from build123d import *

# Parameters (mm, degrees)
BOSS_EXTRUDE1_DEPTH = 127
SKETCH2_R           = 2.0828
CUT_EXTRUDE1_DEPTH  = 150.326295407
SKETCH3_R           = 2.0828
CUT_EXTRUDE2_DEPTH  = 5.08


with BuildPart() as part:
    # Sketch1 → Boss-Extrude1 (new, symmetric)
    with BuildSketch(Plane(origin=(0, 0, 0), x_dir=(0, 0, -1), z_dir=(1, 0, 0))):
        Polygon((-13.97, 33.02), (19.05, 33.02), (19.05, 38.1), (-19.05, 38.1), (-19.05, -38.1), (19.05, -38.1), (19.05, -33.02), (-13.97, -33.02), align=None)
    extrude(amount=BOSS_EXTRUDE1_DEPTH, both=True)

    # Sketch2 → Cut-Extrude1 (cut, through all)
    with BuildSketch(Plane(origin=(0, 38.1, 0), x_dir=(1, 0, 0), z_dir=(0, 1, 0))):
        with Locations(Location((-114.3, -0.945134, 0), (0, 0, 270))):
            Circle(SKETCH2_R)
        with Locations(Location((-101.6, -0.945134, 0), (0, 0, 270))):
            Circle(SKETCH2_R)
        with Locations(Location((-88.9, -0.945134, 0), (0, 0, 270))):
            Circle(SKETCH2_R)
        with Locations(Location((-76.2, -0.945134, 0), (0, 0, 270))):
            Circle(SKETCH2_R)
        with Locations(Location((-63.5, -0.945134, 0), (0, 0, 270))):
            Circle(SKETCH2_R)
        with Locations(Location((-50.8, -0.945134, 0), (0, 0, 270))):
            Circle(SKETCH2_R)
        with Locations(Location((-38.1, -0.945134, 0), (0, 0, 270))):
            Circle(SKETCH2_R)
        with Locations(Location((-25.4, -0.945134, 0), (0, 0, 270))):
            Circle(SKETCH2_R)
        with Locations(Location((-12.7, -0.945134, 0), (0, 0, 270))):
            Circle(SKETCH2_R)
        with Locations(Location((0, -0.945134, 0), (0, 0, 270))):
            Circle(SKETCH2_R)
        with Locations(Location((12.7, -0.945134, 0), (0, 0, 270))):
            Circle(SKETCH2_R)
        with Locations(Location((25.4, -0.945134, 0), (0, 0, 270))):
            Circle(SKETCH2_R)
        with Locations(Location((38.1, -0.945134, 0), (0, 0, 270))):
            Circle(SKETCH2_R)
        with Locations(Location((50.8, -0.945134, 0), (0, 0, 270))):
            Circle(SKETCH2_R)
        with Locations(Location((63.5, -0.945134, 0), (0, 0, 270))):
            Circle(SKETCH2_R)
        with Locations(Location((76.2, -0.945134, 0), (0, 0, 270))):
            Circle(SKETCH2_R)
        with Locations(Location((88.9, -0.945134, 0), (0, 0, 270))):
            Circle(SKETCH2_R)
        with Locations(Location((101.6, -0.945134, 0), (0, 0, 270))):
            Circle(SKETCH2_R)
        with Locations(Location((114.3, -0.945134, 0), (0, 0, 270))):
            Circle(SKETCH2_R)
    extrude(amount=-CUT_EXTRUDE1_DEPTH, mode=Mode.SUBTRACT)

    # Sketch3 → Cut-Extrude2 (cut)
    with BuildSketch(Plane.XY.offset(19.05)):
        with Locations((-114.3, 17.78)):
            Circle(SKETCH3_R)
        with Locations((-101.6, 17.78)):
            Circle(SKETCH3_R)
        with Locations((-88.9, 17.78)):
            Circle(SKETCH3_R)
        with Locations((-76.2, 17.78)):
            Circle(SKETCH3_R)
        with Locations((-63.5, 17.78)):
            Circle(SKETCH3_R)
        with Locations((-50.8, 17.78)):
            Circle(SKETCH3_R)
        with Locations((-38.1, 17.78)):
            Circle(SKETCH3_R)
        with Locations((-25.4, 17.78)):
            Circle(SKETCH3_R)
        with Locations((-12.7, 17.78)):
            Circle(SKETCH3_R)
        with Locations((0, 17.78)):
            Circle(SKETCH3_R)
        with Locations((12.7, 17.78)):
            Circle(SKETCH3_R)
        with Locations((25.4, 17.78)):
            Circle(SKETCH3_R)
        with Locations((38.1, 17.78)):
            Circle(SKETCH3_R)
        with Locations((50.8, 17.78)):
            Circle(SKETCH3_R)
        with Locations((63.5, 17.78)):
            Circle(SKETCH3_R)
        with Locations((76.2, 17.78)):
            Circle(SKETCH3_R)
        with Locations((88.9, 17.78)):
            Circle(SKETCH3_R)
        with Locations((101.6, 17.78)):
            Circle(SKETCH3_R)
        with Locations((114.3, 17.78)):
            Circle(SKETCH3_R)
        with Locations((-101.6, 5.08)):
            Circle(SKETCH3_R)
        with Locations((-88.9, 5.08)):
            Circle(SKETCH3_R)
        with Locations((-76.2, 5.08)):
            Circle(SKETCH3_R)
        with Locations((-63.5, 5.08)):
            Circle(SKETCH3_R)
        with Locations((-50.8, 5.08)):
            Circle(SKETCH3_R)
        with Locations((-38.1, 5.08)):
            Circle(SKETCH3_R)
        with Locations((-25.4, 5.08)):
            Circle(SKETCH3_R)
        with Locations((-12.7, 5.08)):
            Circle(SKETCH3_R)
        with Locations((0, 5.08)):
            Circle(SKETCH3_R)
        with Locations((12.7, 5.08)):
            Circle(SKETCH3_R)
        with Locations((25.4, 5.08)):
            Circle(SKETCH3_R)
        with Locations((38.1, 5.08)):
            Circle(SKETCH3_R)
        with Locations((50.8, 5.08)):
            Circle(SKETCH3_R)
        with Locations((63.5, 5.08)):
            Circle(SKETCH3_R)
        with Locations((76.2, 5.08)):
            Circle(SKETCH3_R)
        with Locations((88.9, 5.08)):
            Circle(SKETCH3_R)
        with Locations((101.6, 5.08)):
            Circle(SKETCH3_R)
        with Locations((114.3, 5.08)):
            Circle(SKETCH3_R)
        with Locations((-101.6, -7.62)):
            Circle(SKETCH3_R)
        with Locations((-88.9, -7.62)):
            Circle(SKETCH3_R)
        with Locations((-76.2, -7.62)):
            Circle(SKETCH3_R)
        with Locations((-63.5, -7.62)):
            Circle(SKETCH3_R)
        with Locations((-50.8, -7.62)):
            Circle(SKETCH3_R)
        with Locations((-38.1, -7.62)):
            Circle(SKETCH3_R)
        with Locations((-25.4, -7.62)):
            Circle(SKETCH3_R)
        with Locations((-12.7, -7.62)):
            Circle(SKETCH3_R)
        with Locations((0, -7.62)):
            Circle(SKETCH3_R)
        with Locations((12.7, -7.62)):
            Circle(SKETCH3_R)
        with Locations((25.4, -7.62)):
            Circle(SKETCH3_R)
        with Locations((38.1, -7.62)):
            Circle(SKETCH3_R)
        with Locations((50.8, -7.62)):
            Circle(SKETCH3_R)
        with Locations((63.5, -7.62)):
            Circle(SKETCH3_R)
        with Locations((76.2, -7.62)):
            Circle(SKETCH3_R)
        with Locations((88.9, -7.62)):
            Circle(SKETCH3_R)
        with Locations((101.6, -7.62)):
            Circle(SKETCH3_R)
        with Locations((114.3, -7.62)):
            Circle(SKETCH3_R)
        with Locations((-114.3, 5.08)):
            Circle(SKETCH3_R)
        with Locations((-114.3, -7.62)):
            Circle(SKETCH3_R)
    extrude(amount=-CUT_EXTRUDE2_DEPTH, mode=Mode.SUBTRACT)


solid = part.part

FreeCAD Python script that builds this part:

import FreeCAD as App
import Part
import Sketcher

V = App.Vector
Q = App.Units.Quantity

doc = App.newDocument("Part")
body = doc.addObject("PartDesign::Body", "Body")

# Sketch on YZ plane
sketch1 = doc.addObject("Sketcher::SketchObject", "Sketch")
body.addObject(sketch1)
sketch1.AttachmentSupport = (doc.YZ_Plane, [""])
sketch1.MapMode = "FlatFace"
sketch1.addGeometry([
    Part.LineSegment(V(33.02, 13.97, 0), V(33.02, -19.05, 0)),  # 0
    Part.LineSegment(V(33.02, -19.05, 0), V(38.1, -19.05, 0)),  # 1
    Part.LineSegment(V(38.1, -19.05, 0), V(38.1, 19.05, 0)),  # 2
    Part.LineSegment(V(38.1, 19.05, 0), V(-38.1, 19.05, 0)),  # 3
    Part.LineSegment(V(-38.1, 19.05, 0), V(-38.1, -19.05, 0)),  # 4
    Part.LineSegment(V(-38.1, -19.05, 0), V(-33.02, -19.05, 0)),  # 5
    Part.LineSegment(V(-33.02, -19.05, 0), V(-33.02, 13.97, 0)),  # 6
    Part.LineSegment(V(-33.02, 13.97, 0), V(33.02, 13.97, 0)),  # 7
], False)
sketch1.addConstraint([
    Sketcher.Constraint("Coincident", 0, 2, 1, 1),
    Sketcher.Constraint("Coincident", 1, 2, 2, 1),
    Sketcher.Constraint("Coincident", 2, 2, 3, 1),
    Sketcher.Constraint("Coincident", 3, 2, 4, 1),
    Sketcher.Constraint("Coincident", 4, 2, 5, 1),
    Sketcher.Constraint("Coincident", 5, 2, 6, 1),
    Sketcher.Constraint("Coincident", 6, 2, 7, 1),
    Sketcher.Constraint("Coincident", 7, 2, 0, 1),
    Sketcher.Constraint("Vertical", 0),
    Sketcher.Constraint("Horizontal", 1),
    Sketcher.Constraint("Vertical", 2),
    Sketcher.Constraint("Horizontal", 3),
    Sketcher.Constraint("Vertical", 4),
    Sketcher.Constraint("Horizontal", 5),
    Sketcher.Constraint("Vertical", 6),
    Sketcher.Constraint("Horizontal", 7),
    Sketcher.Constraint("Symmetric", 1, 2, 3, 2, -1, 1),
    Sketcher.Constraint("Symmetric", 0, 2, 5, 2, -2),
    Sketcher.Constraint("DistanceX", 3, 2, 3, 1, Q("3 in")),
    Sketcher.Constraint("DistanceX", 1, 1, 1, 2, Q("0.2 in")),
    Sketcher.Constraint("DistanceY", 0, 2, 0, 1, Q("1.3 in")),
    Sketcher.Constraint("DistanceY", 2, 1, 2, 2, Q("1.5 in")),
])
pad1 = doc.addObject("PartDesign::Pad", "Pad")
body.addObject(pad1)
pad1.Profile = sketch1
pad1.Length = Q("10 in")
pad1.Midplane = True

# Sketch on XZ plane
sketch2 = doc.addObject("Sketcher::SketchObject", "Sketch001")
body.addObject(sketch2)
sketch2.AttachmentSupport = (doc.XZ_Plane, [""])
sketch2.MapMode = "FlatFace"
sketch2.AttachmentOffset = App.Placement(V(0, 0, -1.5 * 25.4), App.Rotation())
sketch2.addGeometry([
    Part.Circle(V(-114.3, 0.945134, 0), V(0, 0, 1), 2.0828),  # 0
    Part.Circle(V(-101.6, 0.945134, 0), V(0, 0, 1), 2.0828),  # 1
    Part.Circle(V(-88.9, 0.945134, 0), V(0, 0, 1), 2.0828),  # 2
    Part.Circle(V(-76.2, 0.945134, 0), V(0, 0, 1), 2.0828),  # 3
    Part.Circle(V(-63.5, 0.945134, 0), V(0, 0, 1), 2.0828),  # 4
    Part.Circle(V(-50.8, 0.945134, 0), V(0, 0, 1), 2.0828),  # 5
    Part.Circle(V(-38.1, 0.945134, 0), V(0, 0, 1), 2.0828),  # 6
    Part.Circle(V(-25.4, 0.945134, 0), V(0, 0, 1), 2.0828),  # 7
    Part.Circle(V(-12.7, 0.945134, 0), V(0, 0, 1), 2.0828),  # 8
    Part.Circle(V(0, 0.945134, 0), V(0, 0, 1), 2.0828),  # 9
    Part.Circle(V(12.7, 0.945134, 0), V(0, 0, 1), 2.0828),  # 10
    Part.Circle(V(25.4, 0.945134, 0), V(0, 0, 1), 2.0828),  # 11
    Part.Circle(V(38.1, 0.945134, 0), V(0, 0, 1), 2.0828),  # 12
    Part.Circle(V(50.8, 0.945134, 0), V(0, 0, 1), 2.0828),  # 13
    Part.Circle(V(63.5, 0.945134, 0), V(0, 0, 1), 2.0828),  # 14
    Part.Circle(V(76.2, 0.945134, 0), V(0, 0, 1), 2.0828),  # 15
    Part.Circle(V(88.9, 0.945134, 0), V(0, 0, 1), 2.0828),  # 16
    Part.Circle(V(101.6, 0.945134, 0), V(0, 0, 1), 2.0828),  # 17
    Part.Circle(V(114.3, 0.945134, 0), V(0, 0, 1), 2.0828),  # 18
], False)
sketch2.addConstraint([
    Sketcher.Constraint("Equal", 0, 1),
    Sketcher.Constraint("Equal", 1, 2),
    Sketcher.Constraint("Equal", 2, 3),
    Sketcher.Constraint("Equal", 3, 4),
    Sketcher.Constraint("Equal", 4, 5),
    Sketcher.Constraint("Equal", 5, 6),
    Sketcher.Constraint("Equal", 6, 7),
    Sketcher.Constraint("Equal", 7, 8),
    Sketcher.Constraint("Equal", 8, 9),
    Sketcher.Constraint("Equal", 9, 10),
    Sketcher.Constraint("Equal", 10, 11),
    Sketcher.Constraint("Equal", 11, 12),
    Sketcher.Constraint("Equal", 12, 13),
    Sketcher.Constraint("Equal", 13, 14),
    Sketcher.Constraint("Equal", 14, 15),
    Sketcher.Constraint("Equal", 15, 16),
    Sketcher.Constraint("Equal", 16, 17),
    Sketcher.Constraint("Equal", 17, 18),
    Sketcher.Constraint("Symmetric", 8, 3, 10, 3, -2),
    Sketcher.Constraint("Symmetric", 7, 3, 11, 3, -2),
    Sketcher.Constraint("Symmetric", 6, 3, 12, 3, -2),
    Sketcher.Constraint("Symmetric", 5, 3, 13, 3, -2),
    Sketcher.Constraint("Symmetric", 4, 3, 14, 3, -2),
    Sketcher.Constraint("Symmetric", 3, 3, 15, 3, -2),
    Sketcher.Constraint("Symmetric", 2, 3, 16, 3, -2),
    Sketcher.Constraint("Symmetric", 1, 3, 17, 3, -2),
    Sketcher.Constraint("Symmetric", 0, 3, 18, 3, -2),
    Sketcher.Constraint("PointOnObject", 9, 3, -2),
    Sketcher.Constraint("Horizontal", 0, 3, 1, 3),
    Sketcher.Constraint("Horizontal", 1, 3, 2, 3),
    Sketcher.Constraint("Horizontal", 2, 3, 3, 3),
    Sketcher.Constraint("Horizontal", 3, 3, 4, 3),
    Sketcher.Constraint("Horizontal", 4, 3, 5, 3),
    Sketcher.Constraint("Horizontal", 5, 3, 6, 3),
    Sketcher.Constraint("Horizontal", 6, 3, 7, 3),
    Sketcher.Constraint("Horizontal", 7, 3, 8, 3),
    Sketcher.Constraint("Horizontal", 8, 3, 9, 3),
    Sketcher.Constraint("Diameter", 0, Q("0.164 in")),
    Sketcher.Constraint("DistanceX", 1, 3, -1, 1, Q("4 in")),
    Sketcher.Constraint("DistanceX", 3, 3, -1, 1, Q("3 in")),
    Sketcher.Constraint("DistanceX", 5, 3, -1, 1, Q("2 in")),
    Sketcher.Constraint("DistanceX", 7, 3, -1, 1, Q("1 in")),
    Sketcher.Constraint("DistanceX", 0, 3, 2, 3, Q("1 in")),
    Sketcher.Constraint("DistanceX", 2, 3, 4, 3, Q("1 in")),
    Sketcher.Constraint("DistanceX", 4, 3, 6, 3, Q("1 in")),
    Sketcher.Constraint("DistanceX", 6, 3, 8, 3, Q("1 in")),
    Sketcher.Constraint("DistanceX", 8, 3, 10, 3, Q("1 in")),
    Sketcher.Constraint("DistanceY", -1, 1, 0, 3, Q("0.945134 mm")),
])
pocket1 = doc.addObject("PartDesign::Pocket", "Pocket")
body.addObject(pocket1)
pocket1.Profile = sketch2
pocket1.Type = "ThroughAll"
pocket1.Reversed = True

# Sketch on XY plane
sketch3 = doc.addObject("Sketcher::SketchObject", "Sketch002")
body.addObject(sketch3)
sketch3.AttachmentSupport = (doc.XY_Plane, [""])
sketch3.MapMode = "FlatFace"
sketch3.AttachmentOffset = App.Placement(V(0, 0, 0.75 * 25.4), App.Rotation())
sketch3.addGeometry([
    Part.Circle(V(-114.3, 17.78, 0), V(0, 0, 1), 2.0828),  # 0
    Part.Circle(V(-101.6, 17.78, 0), V(0, 0, 1), 2.0828),  # 1
    Part.Circle(V(-88.9, 17.78, 0), V(0, 0, 1), 2.0828),  # 2
    Part.Circle(V(-76.2, 17.78, 0), V(0, 0, 1), 2.0828),  # 3
    Part.Circle(V(-63.5, 17.78, 0), V(0, 0, 1), 2.0828),  # 4
    Part.Circle(V(-50.8, 17.78, 0), V(0, 0, 1), 2.0828),  # 5
    Part.Circle(V(-38.1, 17.78, 0), V(0, 0, 1), 2.0828),  # 6
    Part.Circle(V(-25.4, 17.78, 0), V(0, 0, 1), 2.0828),  # 7
    Part.Circle(V(-12.7, 17.78, 0), V(0, 0, 1), 2.0828),  # 8
    Part.Circle(V(0, 17.78, 0), V(0, 0, 1), 2.0828),  # 9
    Part.Circle(V(12.7, 17.78, 0), V(0, 0, 1), 2.0828),  # 10
    Part.Circle(V(25.4, 17.78, 0), V(0, 0, 1), 2.0828),  # 11
    Part.Circle(V(38.1, 17.78, 0), V(0, 0, 1), 2.0828),  # 12
    Part.Circle(V(50.8, 17.78, 0), V(0, 0, 1), 2.0828),  # 13
    Part.Circle(V(63.5, 17.78, 0), V(0, 0, 1), 2.0828),  # 14
    Part.Circle(V(76.2, 17.78, 0), V(0, 0, 1), 2.0828),  # 15
    Part.Circle(V(88.9, 17.78, 0), V(0, 0, 1), 2.0828),  # 16
    Part.Circle(V(101.6, 17.78, 0), V(0, 0, 1), 2.0828),  # 17
    Part.Circle(V(114.3, 17.78, 0), V(0, 0, 1), 2.0828),  # 18
    Part.Circle(V(-101.6, 5.08, 0), V(0, 0, 1), 2.0828),  # 19
    Part.Circle(V(-88.9, 5.08, 0), V(0, 0, 1), 2.0828),  # 20
    Part.Circle(V(-76.2, 5.08, 0), V(0, 0, 1), 2.0828),  # 21
    Part.Circle(V(-63.5, 5.08, 0), V(0, 0, 1), 2.0828),  # 22
    Part.Circle(V(-50.8, 5.08, 0), V(0, 0, 1), 2.0828),  # 23
    Part.Circle(V(-38.1, 5.08, 0), V(0, 0, 1), 2.0828),  # 24
    Part.Circle(V(-25.4, 5.08, 0), V(0, 0, 1), 2.0828),  # 25
    Part.Circle(V(-12.7, 5.08, 0), V(0, 0, 1), 2.0828),  # 26
    Part.Circle(V(0, 5.08, 0), V(0, 0, 1), 2.0828),  # 27
    Part.Circle(V(12.7, 5.08, 0), V(0, 0, 1), 2.0828),  # 28
    Part.Circle(V(25.4, 5.08, 0), V(0, 0, 1), 2.0828),  # 29
    Part.Circle(V(38.1, 5.08, 0), V(0, 0, 1), 2.0828),  # 30
    Part.Circle(V(50.8, 5.08, 0), V(0, 0, 1), 2.0828),  # 31
    Part.Circle(V(63.5, 5.08, 0), V(0, 0, 1), 2.0828),  # 32
    Part.Circle(V(76.2, 5.08, 0), V(0, 0, 1), 2.0828),  # 33
    Part.Circle(V(88.9, 5.08, 0), V(0, 0, 1), 2.0828),  # 34
    Part.Circle(V(101.6, 5.08, 0), V(0, 0, 1), 2.0828),  # 35
    Part.Circle(V(114.3, 5.08, 0), V(0, 0, 1), 2.0828),  # 36
    Part.Circle(V(-101.6, -7.62, 0), V(0, 0, 1), 2.0828),  # 37
    Part.Circle(V(-88.9, -7.62, 0), V(0, 0, 1), 2.0828),  # 38
    Part.Circle(V(-76.2, -7.62, 0), V(0, 0, 1), 2.0828),  # 39
    Part.Circle(V(-63.5, -7.62, 0), V(0, 0, 1), 2.0828),  # 40
    Part.Circle(V(-50.8, -7.62, 0), V(0, 0, 1), 2.0828),  # 41
    Part.Circle(V(-38.1, -7.62, 0), V(0, 0, 1), 2.0828),  # 42
    Part.Circle(V(-25.4, -7.62, 0), V(0, 0, 1), 2.0828),  # 43
    Part.Circle(V(-12.7, -7.62, 0), V(0, 0, 1), 2.0828),  # 44
    Part.Circle(V(0, -7.62, 0), V(0, 0, 1), 2.0828),  # 45
    Part.Circle(V(12.7, -7.62, 0), V(0, 0, 1), 2.0828),  # 46
    Part.Circle(V(25.4, -7.62, 0), V(0, 0, 1), 2.0828),  # 47
    Part.Circle(V(38.1, -7.62, 0), V(0, 0, 1), 2.0828),  # 48
    Part.Circle(V(50.8, -7.62, 0), V(0, 0, 1), 2.0828),  # 49
    Part.Circle(V(63.5, -7.62, 0), V(0, 0, 1), 2.0828),  # 50
    Part.Circle(V(76.2, -7.62, 0), V(0, 0, 1), 2.0828),  # 51
    Part.Circle(V(88.9, -7.62, 0), V(0, 0, 1), 2.0828),  # 52
    Part.Circle(V(101.6, -7.62, 0), V(0, 0, 1), 2.0828),  # 53
    Part.Circle(V(114.3, -7.62, 0), V(0, 0, 1), 2.0828),  # 54
    Part.Circle(V(-114.3, 5.08, 0), V(0, 0, 1), 2.0828),  # 55
    Part.Circle(V(-114.3, -7.62, 0), V(0, 0, 1), 2.0828),  # 56
], False)
sketch3.addConstraint([
    Sketcher.Constraint("Equal", 0, 1),
    Sketcher.Constraint("Equal", 1, 2),
    Sketcher.Constraint("Equal", 2, 3),
    Sketcher.Constraint("Equal", 3, 4),
    Sketcher.Constraint("Equal", 4, 5),
    Sketcher.Constraint("Equal", 5, 6),
    Sketcher.Constraint("Equal", 6, 7),
    Sketcher.Constraint("Equal", 7, 8),
    Sketcher.Constraint("Equal", 8, 9),
    Sketcher.Constraint("Equal", 9, 10),
    Sketcher.Constraint("Equal", 10, 11),
    Sketcher.Constraint("Equal", 11, 12),
    Sketcher.Constraint("Equal", 12, 13),
    Sketcher.Constraint("Equal", 13, 14),
    Sketcher.Constraint("Equal", 14, 15),
    Sketcher.Constraint("Equal", 15, 16),
    Sketcher.Constraint("Equal", 16, 17),
    Sketcher.Constraint("Equal", 17, 18),
    Sketcher.Constraint("Equal", 18, 19),
    Sketcher.Constraint("Equal", 19, 20),
    Sketcher.Constraint("Equal", 20, 21),
    Sketcher.Constraint("Equal", 21, 22),
    Sketcher.Constraint("Equal", 22, 23),
    Sketcher.Constraint("Equal", 23, 24),
    Sketcher.Constraint("Equal", 24, 25),
    Sketcher.Constraint("Equal", 25, 26),
    Sketcher.Constraint("Equal", 26, 27),
    Sketcher.Constraint("Equal", 27, 28),
    Sketcher.Constraint("Equal", 28, 29),
    Sketcher.Constraint("Equal", 29, 30),
    Sketcher.Constraint("Equal", 30, 31),
    Sketcher.Constraint("Equal", 31, 32),
    Sketcher.Constraint("Equal", 32, 33),
    Sketcher.Constraint("Equal", 33, 34),
    Sketcher.Constraint("Equal", 34, 35),
    Sketcher.Constraint("Equal", 35, 36),
    Sketcher.Constraint("Equal", 36, 37),
    Sketcher.Constraint("Equal", 37, 38),
    Sketcher.Constraint("Equal", 38, 39),
    Sketcher.Constraint("Equal", 39, 40),
    Sketcher.Constraint("Equal", 40, 41),
    Sketcher.Constraint("Equal", 41, 42),
    Sketcher.Constraint("Equal", 42, 43),
    Sketcher.Constraint("Equal", 43, 44),
    Sketcher.Constraint("Equal", 44, 45),
    Sketcher.Constraint("Equal", 45, 46),
    Sketcher.Constraint("Equal", 46, 47),
    Sketcher.Constraint("Equal", 47, 48),
    Sketcher.Constraint("Equal", 48, 49),
    Sketcher.Constraint("Equal", 49, 50),
    Sketcher.Constraint("Equal", 50, 51),
    Sketcher.Constraint("Equal", 51, 52),
    Sketcher.Constraint("Equal", 52, 53),
    Sketcher.Constraint("Equal", 53, 54),
    Sketcher.Constraint("Equal", 54, 55),
    Sketcher.Constraint("Equal", 55, 56),
    Sketcher.Constraint("Symmetric", 8, 3, 10, 3, -2),
    Sketcher.Constraint("Symmetric", 7, 3, 11, 3, -2),
    Sketcher.Constraint("Symmetric", 6, 3, 12, 3, -2),
    Sketcher.Constraint("Symmetric", 5, 3, 13, 3, -2),
    Sketcher.Constraint("Symmetric", 4, 3, 14, 3, -2),
    Sketcher.Constraint("Symmetric", 3, 3, 15, 3, -2),
    Sketcher.Constraint("Symmetric", 2, 3, 16, 3, -2),
    Sketcher.Constraint("Symmetric", 1, 3, 17, 3, -2),
    Sketcher.Constraint("Symmetric", 0, 3, 18, 3, -2),
    Sketcher.Constraint("Symmetric", 26, 3, 28, 3, -2),
    Sketcher.Constraint("Symmetric", 25, 3, 29, 3, -2),
    Sketcher.Constraint("Symmetric", 24, 3, 30, 3, -2),
    Sketcher.Constraint("Symmetric", 23, 3, 31, 3, -2),
    Sketcher.Constraint("Symmetric", 22, 3, 32, 3, -2),
    Sketcher.Constraint("Symmetric", 21, 3, 33, 3, -2),
    Sketcher.Constraint("Symmetric", 20, 3, 34, 3, -2),
    Sketcher.Constraint("Symmetric", 19, 3, 35, 3, -2),
    Sketcher.Constraint("Symmetric", 44, 3, 46, 3, -2),
    Sketcher.Constraint("Symmetric", 43, 3, 47, 3, -2),
    Sketcher.Constraint("Symmetric", 42, 3, 48, 3, -2),
    Sketcher.Constraint("Symmetric", 41, 3, 49, 3, -2),
    Sketcher.Constraint("Symmetric", 40, 3, 50, 3, -2),
    Sketcher.Constraint("Symmetric", 39, 3, 51, 3, -2),
    Sketcher.Constraint("Symmetric", 38, 3, 52, 3, -2),
    Sketcher.Constraint("Symmetric", 37, 3, 53, 3, -2),
    Sketcher.Constraint("Symmetric", 36, 3, 55, 3, -2),
    Sketcher.Constraint("Symmetric", 54, 3, 56, 3, -2),
    Sketcher.Constraint("PointOnObject", 9, 3, -2),
    Sketcher.Constraint("PointOnObject", 27, 3, -2),
    Sketcher.Constraint("PointOnObject", 45, 3, -2),
    Sketcher.Constraint("Horizontal", 0, 3, 1, 3),
    Sketcher.Constraint("Horizontal", 1, 3, 2, 3),
    Sketcher.Constraint("Horizontal", 2, 3, 3, 3),
    Sketcher.Constraint("Horizontal", 3, 3, 4, 3),
    Sketcher.Constraint("Horizontal", 4, 3, 5, 3),
    Sketcher.Constraint("Horizontal", 5, 3, 6, 3),
    Sketcher.Constraint("Horizontal", 6, 3, 7, 3),
    Sketcher.Constraint("Horizontal", 7, 3, 8, 3),
    Sketcher.Constraint("Horizontal", 8, 3, 9, 3),
    Sketcher.Constraint("Horizontal", 19, 3, 20, 3),
    Sketcher.Constraint("Horizontal", 20, 3, 21, 3),
    Sketcher.Constraint("Horizontal", 21, 3, 22, 3),
    Sketcher.Constraint("Horizontal", 22, 3, 23, 3),
    Sketcher.Constraint("Horizontal", 23, 3, 24, 3),
    Sketcher.Constraint("Horizontal", 24, 3, 25, 3),
    Sketcher.Constraint("Horizontal", 25, 3, 26, 3),
    Sketcher.Constraint("Horizontal", 26, 3, 27, 3),
    Sketcher.Constraint("Horizontal", 35, 3, 36, 3),
    Sketcher.Constraint("Horizontal", 37, 3, 38, 3),
    Sketcher.Constraint("Horizontal", 38, 3, 39, 3),
    Sketcher.Constraint("Horizontal", 39, 3, 40, 3),
    Sketcher.Constraint("Horizontal", 40, 3, 41, 3),
    Sketcher.Constraint("Horizontal", 41, 3, 42, 3),
    Sketcher.Constraint("Horizontal", 42, 3, 43, 3),
    Sketcher.Constraint("Horizontal", 43, 3, 44, 3),
    Sketcher.Constraint("Horizontal", 44, 3, 45, 3),
    Sketcher.Constraint("Horizontal", 53, 3, 54, 3),
    Sketcher.Constraint("Vertical", 1, 3, 19, 3),
    Sketcher.Constraint("Vertical", 2, 3, 20, 3),
    Sketcher.Constraint("Vertical", 3, 3, 21, 3),
    Sketcher.Constraint("Vertical", 4, 3, 22, 3),
    Sketcher.Constraint("Vertical", 5, 3, 23, 3),
    Sketcher.Constraint("Vertical", 6, 3, 24, 3),
    Sketcher.Constraint("Vertical", 7, 3, 25, 3),
    Sketcher.Constraint("Vertical", 8, 3, 26, 3),
    Sketcher.Constraint("Vertical", 18, 3, 36, 3),
    Sketcher.Constraint("Vertical", 19, 3, 37, 3),
    Sketcher.Constraint("Vertical", 20, 3, 38, 3),
    Sketcher.Constraint("Vertical", 21, 3, 39, 3),
    Sketcher.Constraint("Vertical", 22, 3, 40, 3),
    Sketcher.Constraint("Vertical", 23, 3, 41, 3),
    Sketcher.Constraint("Vertical", 24, 3, 42, 3),
    Sketcher.Constraint("Vertical", 25, 3, 43, 3),
    Sketcher.Constraint("Vertical", 26, 3, 44, 3),
    Sketcher.Constraint("Vertical", 36, 3, 54, 3),
    Sketcher.Constraint("Diameter", 0, Q("0.164 in")),
    Sketcher.Constraint("DistanceX", 1, 3, -1, 1, Q("4 in")),
    Sketcher.Constraint("DistanceX", 3, 3, -1, 1, Q("3 in")),
    Sketcher.Constraint("DistanceX", 5, 3, -1, 1, Q("2 in")),
    Sketcher.Constraint("DistanceX", 7, 3, -1, 1, Q("1 in")),
    Sketcher.Constraint("DistanceX", 0, 3, 2, 3, Q("1 in")),
    Sketcher.Constraint("DistanceX", 2, 3, 4, 3, Q("1 in")),
    Sketcher.Constraint("DistanceX", 4, 3, 6, 3, Q("1 in")),
    Sketcher.Constraint("DistanceX", 6, 3, 8, 3, Q("1 in")),
    Sketcher.Constraint("DistanceX", 8, 3, 10, 3, Q("1 in")),
    Sketcher.Constraint("DistanceY", 37, 3, 1, 3, Q("1 in")),
    Sketcher.Constraint("DistanceY", -1, 1, 0, 3, Q("0.7 in")),
    Sketcher.Constraint("DistanceY", -1, 1, 19, 3, Q("0.2 in")),
])
pocket2 = doc.addObject("PartDesign::Pocket", "Pocket001")
body.addObject(pocket2)
pocket2.Profile = sketch3
pocket2.Length = Q("0.2 in")

doc.recompute()
